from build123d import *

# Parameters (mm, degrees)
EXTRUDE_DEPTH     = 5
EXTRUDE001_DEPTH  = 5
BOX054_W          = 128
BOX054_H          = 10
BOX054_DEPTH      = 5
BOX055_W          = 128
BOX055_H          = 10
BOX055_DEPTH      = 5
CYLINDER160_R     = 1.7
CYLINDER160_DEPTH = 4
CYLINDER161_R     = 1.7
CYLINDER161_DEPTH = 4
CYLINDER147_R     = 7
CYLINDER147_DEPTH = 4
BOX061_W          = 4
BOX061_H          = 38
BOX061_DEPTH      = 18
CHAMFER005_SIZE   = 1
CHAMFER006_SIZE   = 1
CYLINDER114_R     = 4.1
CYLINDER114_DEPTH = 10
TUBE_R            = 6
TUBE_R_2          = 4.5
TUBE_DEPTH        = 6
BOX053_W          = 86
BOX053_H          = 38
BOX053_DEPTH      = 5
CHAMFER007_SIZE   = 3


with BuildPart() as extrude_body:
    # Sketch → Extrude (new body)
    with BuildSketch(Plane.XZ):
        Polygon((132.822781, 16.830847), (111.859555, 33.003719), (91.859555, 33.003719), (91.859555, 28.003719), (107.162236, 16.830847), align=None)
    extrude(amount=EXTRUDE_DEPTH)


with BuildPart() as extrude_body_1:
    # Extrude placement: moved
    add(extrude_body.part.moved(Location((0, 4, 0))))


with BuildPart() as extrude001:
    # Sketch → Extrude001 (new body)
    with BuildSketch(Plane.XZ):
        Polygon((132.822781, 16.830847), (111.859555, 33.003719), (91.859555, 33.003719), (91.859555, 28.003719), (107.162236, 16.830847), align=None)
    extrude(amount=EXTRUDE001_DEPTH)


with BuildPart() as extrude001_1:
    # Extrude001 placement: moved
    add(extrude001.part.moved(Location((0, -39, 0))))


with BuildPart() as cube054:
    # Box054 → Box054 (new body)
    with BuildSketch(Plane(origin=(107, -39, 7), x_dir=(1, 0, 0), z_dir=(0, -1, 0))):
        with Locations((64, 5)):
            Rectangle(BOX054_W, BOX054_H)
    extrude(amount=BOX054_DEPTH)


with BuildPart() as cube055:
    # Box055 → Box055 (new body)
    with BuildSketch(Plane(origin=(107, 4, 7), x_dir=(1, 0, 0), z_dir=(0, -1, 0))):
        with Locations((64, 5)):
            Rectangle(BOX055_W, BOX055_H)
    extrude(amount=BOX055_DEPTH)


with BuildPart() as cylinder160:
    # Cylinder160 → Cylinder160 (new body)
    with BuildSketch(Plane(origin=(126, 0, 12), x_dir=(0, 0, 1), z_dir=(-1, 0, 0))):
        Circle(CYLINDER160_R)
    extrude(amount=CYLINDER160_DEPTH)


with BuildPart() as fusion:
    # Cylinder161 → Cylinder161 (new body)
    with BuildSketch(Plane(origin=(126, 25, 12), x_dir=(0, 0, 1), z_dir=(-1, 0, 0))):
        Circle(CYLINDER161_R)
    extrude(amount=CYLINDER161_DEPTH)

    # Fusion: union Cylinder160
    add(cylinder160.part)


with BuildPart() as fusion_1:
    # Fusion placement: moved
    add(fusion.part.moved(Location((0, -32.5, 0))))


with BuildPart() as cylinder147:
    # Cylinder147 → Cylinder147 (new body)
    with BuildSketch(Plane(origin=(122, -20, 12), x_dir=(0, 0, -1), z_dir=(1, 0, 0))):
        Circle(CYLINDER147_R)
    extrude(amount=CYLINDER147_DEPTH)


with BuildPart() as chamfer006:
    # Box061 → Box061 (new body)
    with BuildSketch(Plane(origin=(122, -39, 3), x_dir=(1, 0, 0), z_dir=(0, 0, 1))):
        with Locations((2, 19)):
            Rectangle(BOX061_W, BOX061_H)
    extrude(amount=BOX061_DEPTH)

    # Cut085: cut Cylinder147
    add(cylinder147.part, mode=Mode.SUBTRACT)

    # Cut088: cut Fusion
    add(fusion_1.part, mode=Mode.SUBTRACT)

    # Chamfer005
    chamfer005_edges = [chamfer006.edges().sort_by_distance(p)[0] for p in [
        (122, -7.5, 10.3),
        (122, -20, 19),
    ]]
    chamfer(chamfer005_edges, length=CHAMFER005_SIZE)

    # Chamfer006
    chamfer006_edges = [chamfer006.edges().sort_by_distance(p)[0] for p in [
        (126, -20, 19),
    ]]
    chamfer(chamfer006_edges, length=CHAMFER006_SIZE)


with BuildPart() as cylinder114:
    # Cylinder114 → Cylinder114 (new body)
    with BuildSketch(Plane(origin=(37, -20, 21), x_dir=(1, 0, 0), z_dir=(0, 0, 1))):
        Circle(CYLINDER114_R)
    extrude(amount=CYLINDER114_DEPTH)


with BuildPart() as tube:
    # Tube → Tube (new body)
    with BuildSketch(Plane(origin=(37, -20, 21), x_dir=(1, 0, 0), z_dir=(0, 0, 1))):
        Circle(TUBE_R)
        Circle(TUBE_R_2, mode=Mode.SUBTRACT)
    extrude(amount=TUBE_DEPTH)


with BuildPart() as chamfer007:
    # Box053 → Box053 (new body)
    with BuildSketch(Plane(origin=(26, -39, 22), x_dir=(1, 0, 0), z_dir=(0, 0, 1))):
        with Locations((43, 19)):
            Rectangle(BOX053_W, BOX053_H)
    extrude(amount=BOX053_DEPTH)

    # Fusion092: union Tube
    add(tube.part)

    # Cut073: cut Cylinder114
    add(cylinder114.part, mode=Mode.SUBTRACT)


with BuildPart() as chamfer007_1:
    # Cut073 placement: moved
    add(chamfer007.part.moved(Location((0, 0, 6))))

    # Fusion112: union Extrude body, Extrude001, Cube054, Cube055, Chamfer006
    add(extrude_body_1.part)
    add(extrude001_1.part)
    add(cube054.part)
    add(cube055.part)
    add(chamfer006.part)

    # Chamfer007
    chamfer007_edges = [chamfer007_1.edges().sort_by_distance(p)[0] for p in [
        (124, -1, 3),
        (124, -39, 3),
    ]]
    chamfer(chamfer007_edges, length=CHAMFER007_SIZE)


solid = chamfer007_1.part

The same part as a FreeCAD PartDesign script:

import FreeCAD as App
import Part
import Sketcher
from FreeCAD import Vector
Q = App.Units.Quantity


def edges_at(feature, points):
    """Names of the edges that pass closest to the given points."""
    edges = feature.Shape.Edges
    near = lambda p: min(range(len(edges)), key=lambda i: edges[i].distToShape(Part.Vertex(*p))[0])
    return sorted({f"Edge{near(p) + 1}" for p in points})

doc = App.newDocument("Part")
params = doc.addObject("Spreadsheet::Sheet", "Params")
for row, (alias, value) in enumerate([
    ("sketch1_width", "20 mm"),
    ("sketch1_height", "5 mm"),
    ("pad1_length", "5 mm"),
    ("sketch2_width", "20 mm"),
    ("sketch2_height", "5 mm"),
    ("pad2_length", "5 mm"),
    ("sketch3_width", "128 mm"),
    ("sketch3_height", "10 mm"),
    ("pad3_length", "5 mm"),
    ("sketch4_width", "128 mm"),
    ("sketch4_height", "10 mm"),
    ("pad4_length", "5 mm"),
    ("sketch5_diameter", "3.4 mm"),
    ("pad5_length", "4 mm"),
    ("sketch6_diameter", "3.4 mm"),
    ("pad6_length", "4 mm"),
    ("sketch7_diameter", "14 mm"),
    ("pad7_length", "4 mm"),
    ("sketch8_width", "4 mm"),
    ("sketch8_height", "38 mm"),
    ("pad8_length", "18 mm"),
    ("chamfer_size", "1 mm"),
    ("chamfer2_size", "1 mm"),
    ("sketch9_diameter", "8.2 mm"),
    ("pad9_length", "10 mm"),
    ("sketch10_diameter", "12 mm"),
    ("sketch10_diameter2", "9 mm"),
    ("pad10_length", "6 mm"),
    ("sketch11_width", "86 mm"),
    ("sketch11_height", "38 mm"),
    ("pad11_length", "5 mm"),
    ("chamfer3_size", "3 mm"),
], start=1):
    params.set(f"A{row}", alias)
    params.set(f"B{row}", "=" + value)
    params.setAlias(f"B{row}", alias)

body = doc.addObject("PartDesign::Body", "Body")

# Sketch on XZ plane
sketch1 = body.newObject("Sketcher::SketchObject", "Sketch")
sketch1.AttachmentSupport = (doc.getObject("XZ_Plane"), [""])
sketch1.MapMode = "FlatFace"
sketch1.addGeometry(Part.LineSegment(Vector(132.8, 16.8, 0), Vector(111.9, 33, 0)), False)
sketch1.addGeometry(Part.LineSegment(Vector(111.9, 33, 0), Vector(91.9, 33, 0)), False)
sketch1.addGeometry(Part.LineSegment(Vector(91.9, 33, 0), Vector(91.9, 28, 0)), False)
sketch1.addGeometry(Part.LineSegment(Vector(91.9, 28, 0), Vector(107.2, 16.8, 0)), False)
sketch1.addGeometry(Part.LineSegment(Vector(107.2, 16.8, 0), Vector(132.8, 16.8, 0)), False)
sketch1.addConstraint(Sketcher.Constraint("Coincident", 0, 2, 1, 1))
sketch1.addConstraint(Sketcher.Constraint("Coincident", 1, 2, 2, 1))
sketch1.addConstraint(Sketcher.Constraint("Coincident", 2, 2, 3, 1))
sketch1.addConstraint(Sketcher.Constraint("Coincident", 3, 2, 4, 1))
sketch1.addConstraint(Sketcher.Constraint("Coincident", 4, 2, 0, 1))
sketch1.addConstraint(Sketcher.Constraint("Horizontal", 1))
sketch1.addConstraint(Sketcher.Constraint("Vertical", 2))
sketch1.addConstraint(Sketcher.Constraint("Horizontal", 4))
sketch1.addConstraint(Sketcher.Constraint("DistanceX", 1, 2, 1, 1, Q("20 mm")))
sketch1.addConstraint(Sketcher.Constraint("DistanceY", 2, 2, 2, 1, Q("5 mm")))
sketch1.addConstraint(Sketcher.Constraint("Distance", 3, Q("18.94743 mm")))
sketch1.addConstraint(Sketcher.Constraint("DistanceX", 4, 1, 4, 2, Q("25.660545 mm")))
sketch1.addConstraint(Sketcher.Constraint("DistanceY", -1, 1, 0, 2, Q("33.003719 mm")))
sketch1.addConstraint(Sketcher.Constraint("DistanceX", -1, 1, 4, 2, Q("132.822781 mm")))
sketch1.addConstraint(Sketcher.Constraint("DistanceX", 3, 2, 0, 2, Q("4.697319 mm")))
sketch1.setExpression("Constraints[8]", "Params.sketch1_width")
sketch1.setExpression("Constraints[9]", "Params.sketch1_height")
pad1 = body.newObject("PartDesign::Pad", "Pad")
pad1.Profile = sketch1
pad1.setExpression("Length", "Params.pad1_length")
body2 = doc.addObject("PartDesign::Body", "Body001")
doc.recompute()

body.Placement = App.Placement(Vector(0, 4, 0), App.Rotation(Vector(0, 0, 1), 0))
boolean = body2.newObject("PartDesign::Boolean", "Boolean")
boolean.Type = "Fuse"
boolean.addObjects([body])
body3 = doc.addObject("PartDesign::Body", "Body002")

# Sketch on XZ plane
sketch2 = body3.newObject("Sketcher::SketchObject", "Sketch001")
sketch2.AttachmentSupport = (doc.getObject("XZ_Plane002"), [""])
sketch2.MapMode = "FlatFace"
sketch2.addGeometry(Part.LineSegment(Vector(132.8, 16.8, 0), Vector(111.9, 33, 0)), False)
sketch2.addGeometry(Part.LineSegment(Vector(111.9, 33, 0), Vector(91.9, 33, 0)), False)
sketch2.addGeometry(Part.LineSegment(Vector(91.9, 33, 0), Vector(91.9, 28, 0)), False)
sketch2.addGeometry(Part.LineSegment(Vector(91.9, 28, 0), Vector(107.2, 16.8, 0)), False)
sketch2.addGeometry(Part.LineSegment(Vector(107.2, 16.8, 0), Vector(132.8, 16.8, 0)), False)
sketch2.addConstraint(Sketcher.Constraint("Coincident", 0, 2, 1, 1))
sketch2.addConstraint(Sketcher.Constraint("Coincident", 1, 2, 2, 1))
sketch2.addConstraint(Sketcher.Constraint("Coincident", 2, 2, 3, 1))
sketch2.addConstraint(Sketcher.Constraint("Coincident", 3, 2, 4, 1))
sketch2.addConstraint(Sketcher.Constraint("Coincident", 4, 2, 0, 1))
sketch2.addConstraint(Sketcher.Constraint("Horizontal", 1))
sketch2.addConstraint(Sketcher.Constraint("Vertical", 2))
sketch2.addConstraint(Sketcher.Constraint("Horizontal", 4))
sketch2.addConstraint(Sketcher.Constraint("DistanceX", 1, 2, 1, 1, Q("20 mm")))
sketch2.addConstraint(Sketcher.Constraint("DistanceY", 2, 2, 2, 1, Q("5 mm")))
sketch2.addConstraint(Sketcher.Constraint("Distance", 3, Q("18.94743 mm")))
sketch2.addConstraint(Sketcher.Constraint("DistanceX", 4, 1, 4, 2, Q("25.660545 mm")))
sketch2.addConstraint(Sketcher.Constraint("DistanceY", -1, 1, 0, 2, Q("33.003719 mm")))
sketch2.addConstraint(Sketcher.Constraint("DistanceX", -1, 1, 4, 2, Q("132.822781 mm")))
sketch2.addConstraint(Sketcher.Constraint("DistanceX", 3, 2, 0, 2, Q("4.697319 mm")))
sketch2.setExpression("Constraints[8]", "Params.sketch2_width")
sketch2.setExpression("Constraints[9]", "Params.sketch2_height")
pad2 = body3.newObject("PartDesign::Pad", "Pad001")
pad2.Profile = sketch2
pad2.setExpression("Length", "Params.pad2_length")
body4 = doc.addObject("PartDesign::Body", "Body003")
doc.recompute()

body3.Placement = App.Placement(Vector(0, -39, 0), App.Rotation(Vector(0, 0, 1), 0))
boolean2 = body4.newObject("PartDesign::Boolean", "Boolean001")
boolean2.Type = "Fuse"
boolean2.addObjects([body3])
body5 = doc.addObject("PartDesign::Body", "Body004")

# Sketch on XZ plane
sketch3 = body5.newObject("Sketcher::SketchObject", "Sketch002")
sketch3.AttachmentSupport = (doc.getObject("XZ_Plane004"), [""])
sketch3.MapMode = "FlatFace"
sketch3.AttachmentOffset = App.Placement(Vector(0, 0, 39), App.Rotation())
sketch3.addGeometry(Part.LineSegment(Vector(107, 17, 0), Vector(107, 7, 0)), False)
sketch3.addGeometry(Part.LineSegment(Vector(107, 7, 0), Vector(235, 7, 0)), False)
sketch3.addGeometry(Part.LineSegment(Vector(235, 7, 0), Vector(235, 17, 0)), False)
sketch3.addGeometry(Part.LineSegment(Vector(235, 17, 0), Vector(107, 17, 0)), False)
sketch3.addConstraint(Sketcher.Constraint("Coincident", 0, 2, 1, 1))
sketch3.addConstraint(Sketcher.Constraint("Coincident", 1, 2, 2, 1))
sketch3.addConstraint(Sketcher.Constraint("Coincident", 2, 2, 3, 1))
sketch3.addConstraint(Sketcher.Constraint("Coincident", 3, 2, 0, 1))
sketch3.addConstraint(Sketcher.Constraint("Vertical", 0))
sketch3.addConstraint(Sketcher.Constraint("Horizontal", 1))
sketch3.addConstraint(Sketcher.Constraint("Vertical", 2))
sketch3.addConstraint(Sketcher.Constraint("Horizontal", 3))
sketch3.addConstraint(Sketcher.Constraint("DistanceX", 1, 1, 1, 2, Q("128 mm")))
sketch3.addConstraint(Sketcher.Constraint("DistanceY", 0, 2, 0, 1, Q("10 mm")))
sketch3.addConstraint(Sketcher.Constraint("DistanceX", -1, 1, 0, 2, Q("107 mm")))
sketch3.addConstraint(Sketcher.Constraint("DistanceY", -1, 1, 0, 2, Q("7 mm")))
sketch3.setExpression("Constraints[8]", "Params.sketch3_width")
sketch3.setExpression("Constraints[9]", "Params.sketch3_height")
pad3 = body5.newObject("PartDesign::Pad", "Pad002")
pad3.Profile = sketch3
pad3.setExpression("Length", "Params.pad3_length")
body6 = doc.addObject("PartDesign::Body", "Body005")

# Sketch on XZ plane
sketch4 = body6.newObject("Sketcher::SketchObject", "Sketch003")
sketch4.AttachmentSupport = (doc.getObject("XZ_Plane005"), [""])
sketch4.MapMode = "FlatFace"
sketch4.AttachmentOffset = App.Placement(Vector(0, 0, -4), App.Rotation())
sketch4.addGeometry(Part.LineSegment(Vector(107, 17, 0), Vector(107, 7, 0)), False)
sketch4.addGeometry(Part.LineSegment(Vector(107, 7, 0), Vector(235, 7, 0)), False)
sketch4.addGeometry(Part.LineSegment(Vector(235, 7, 0), Vector(235, 17, 0)), False)
sketch4.addGeometry(Part.LineSegment(Vector(235, 17, 0), Vector(107, 17, 0)), False)
sketch4.addConstraint(Sketcher.Constraint("Coincident", 0, 2, 1, 1))
sketch4.addConstraint(Sketcher.Constraint("Coincident", 1, 2, 2, 1))
sketch4.addConstraint(Sketcher.Constraint("Coincident", 2, 2, 3, 1))
sketch4.addConstraint(Sketcher.Constraint("Coincident", 3, 2, 0, 1))
sketch4.addConstraint(Sketcher.Constraint("Vertical", 0))
sketch4.addConstraint(Sketcher.Constraint("Horizontal", 1))
sketch4.addConstraint(Sketcher.Constraint("Vertical", 2))
sketch4.addConstraint(Sketcher.Constraint("Horizontal", 3))
sketch4.addConstraint(Sketcher.Constraint("DistanceX", 1, 1, 1, 2, Q("128 mm")))
sketch4.addConstraint(Sketcher.Constraint("DistanceY", 0, 2, 0, 1, Q("10 mm")))
sketch4.addConstraint(Sketcher.Constraint("DistanceX", -1, 1, 0, 2, Q("107 mm")))
sketch4.addConstraint(Sketcher.Constraint("DistanceY", -1, 1, 0, 2, Q("7 mm")))
sketch4.setExpression("Constraints[8]", "Params.sketch4_width")
sketch4.setExpression("Constraints[9]", "Params.sketch4_height")
pad4 = body6.newObject("PartDesign::Pad", "Pad003")
pad4.Profile = sketch4
pad4.setExpression("Length", "Params.pad4_length")
body7 = doc.addObject("PartDesign::Body", "Body006")

# Sketch on YZ plane
sketch5 = body7.newObject("Sketcher::SketchObject", "Sketch004")
sketch5.AttachmentSupport = (doc.getObject("YZ_Plane006"), [""])
sketch5.MapMode = "FlatFace"
sketch5.AttachmentOffset = App.Placement(Vector(0, 0, 126), App.Rotation())
sketch5.addGeometry(Part.Circle(Vector(0, 12, 0), Vector(0, 0, 1), 1.7), False)
sketch5.addConstraint(Sketcher.Constraint("PointOnObject", 0, 3, -2))
sketch5.addConstraint(Sketcher.Constraint("Diameter", 0, Q("3.4 mm")))
sketch5.addConstraint(Sketcher.Constraint("DistanceY", -1, 1, 0, 3, Q("12 mm")))
sketch5.setExpression("Constraints[1]", "Params.sketch5_diameter")
pad5 = body7.newObject("PartDesign::Pad", "Pad004")
pad5.Profile = sketch5
pad5.setExpression("Length", "Params.pad5_length")
pad5.Reversed = True
body8 = doc.addObject("PartDesign::Body", "Body007")
body8.AllowCompound = True

# Sketch on YZ plane
sketch6 = body8.newObject("Sketcher::SketchObject", "Sketch005")
sketch6.AttachmentSupport = (doc.getObject("YZ_Plane007"), [""])
sketch6.MapMode = "FlatFace"
sketch6.AttachmentOffset = App.Placement(Vector(0, 0, 126), App.Rotation())
sketch6.addGeometry(Part.Circle(Vector(25, 12, 0), Vector(0, 0, 1), 1.7), False)
sketch6.addConstraint(Sketcher.Constraint("Diameter", 0, Q("3.4 mm")))
sketch6.addConstraint(Sketcher.Constraint("DistanceX", -1, 1, 0, 3, Q("25 mm")))
sketch6.addConstraint(Sketcher.Constraint("DistanceY", -1, 1, 0, 3, Q("12 mm")))
sketch6.setExpression("Constraints[0]", "Params.sketch6_diameter")
pad6 = body8.newObject("PartDesign::Pad", "Pad005")
pad6.Profile = sketch6
pad6.setExpression("Length", "Params.pad6_length")
pad6.Reversed = True
doc.recompute()

boolean3 = body8.newObject("PartDesign::Boolean", "Boolean002")
boolean3.Type = "Fuse"
boolean3.addObjects([body7])
body9 = doc.addObject("PartDesign::Body", "Body008")
body9.AllowCompound = True
doc.recompute()

body8.Placement = App.Placement(Vector(0, -32.5, 0), App.Rotation(Vector(0, 0, 1), 0))
boolean4 = body9.newObject("PartDesign::Boolean", "Boolean003")
boolean4.Type = "Fuse"
boolean4.addObjects([body8])
body10 = doc.addObject("PartDesign::Body", "Body009")

# Sketch on YZ plane
sketch7 = body10.newObject("Sketcher::SketchObject", "Sketch006")
sketch7.AttachmentSupport = (doc.getObject("YZ_Plane009"), [""])
sketch7.MapMode = "FlatFace"
sketch7.AttachmentOffset = App.Placement(Vector(0, 0, 122), App.Rotation())
sketch7.addGeometry(Part.Circle(Vector(-20, 12, 0), Vector(0, 0, 1), 7), False)
sketch7.addConstraint(Sketcher.Constraint("Diameter", 0, Q("14 mm")))
sketch7.addConstraint(Sketcher.Constraint("DistanceX", 0, 3, -1, 1, Q("20 mm")))
sketch7.addConstraint(Sketcher.Constraint("DistanceY", -1, 1, 0, 3, Q("12 mm")))
sketch7.setExpression("Constraints[0]", "Params.sketch7_diameter")
pad7 = body10.newObject("PartDesign::Pad", "Pad006")
pad7.Profile = sketch7
pad7.setExpression("Length", "Params.pad7_length")
body11 = doc.addObject("PartDesign::Body", "Body010")

# Sketch on XY plane
sketch8 = body11.newObject("Sketcher::SketchObject", "Sketch007")
sketch8.AttachmentSupport = (doc.getObject("XY_Plane010"), [""])
sketch8.MapMode = "FlatFace"
sketch8.AttachmentOffset = App.Placement(Vector(0, 0, 3), App.Rotation())
sketch8.addGeometry(Part.LineSegment(Vector(122, -1, 0), Vector(122, -39, 0)), False)
sketch8.addGeometry(Part.LineSegment(Vector(122, -39, 0), Vector(126, -39, 0)), False)
sketch8.addGeometry(Part.LineSegment(Vector(126, -39, 0), Vector(126, -1, 0)), False)
sketch8.addGeometry(Part.LineSegment(Vector(126, -1, 0), Vector(122, -1, 0)), False)
sketch8.addConstraint(Sketcher.Constraint("Coincident", 0, 2, 1, 1))
sketch8.addConstraint(Sketcher.Constraint("Coincident", 1, 2, 2, 1))
sketch8.addConstraint(Sketcher.Constraint("Coincident", 2, 2, 3, 1))
sketch8.addConstraint(Sketcher.Constraint("Coincident", 3, 2, 0, 1))
sketch8.addConstraint(Sketcher.Constraint("Vertical", 0))
sketch8.addConstraint(Sketcher.Constraint("Horizontal", 1))
sketch8.addConstraint(Sketcher.Constraint("Vertical", 2))
sketch8.addConstraint(Sketcher.Constraint("Horizontal", 3))
sketch8.addConstraint(Sketcher.Constraint("DistanceX", 1, 1, 1, 2, Q("4 mm")))
sketch8.addConstraint(Sketcher.Constraint("DistanceY", 0, 2, 0, 1, Q("38 mm")))
sketch8.addConstraint(Sketcher.Constraint("DistanceX", -1, 1, 0, 2, Q("122 mm")))
sketch8.addConstraint(Sketcher.Constraint("DistanceY", 0, 2, -1, 1, Q("39 mm")))
sketch8.setExpression("Constraints[8]", "Params.sketch8_width")
sketch8.setExpression("Constraints[9]", "Params.sketch8_height")
pad8 = body11.newObject("PartDesign::Pad", "Pad007")
pad8.Profile = sketch8
pad8.setExpression("Length", "Params.pad8_length")
doc.recompute()

boolean5 = body11.newObject("PartDesign::Boolean", "Boolean004")
boolean5.Type = "Cut"
boolean5.addObjects([body10])
doc.recompute()

boolean6 = body11.newObject("PartDesign::Boolean", "Boolean005")
boolean6.Type = "Cut"
boolean6.addObjects([body9])
doc.recompute()

chamfer = body11.newObject("PartDesign::Chamfer", "Chamfer")
chamfer.Base = (boolean6, edges_at(boolean6, [(122, -7.5, 10.3), (122, -20, 19)]))
chamfer.setExpression("Size", "Params.chamfer_size")
doc.recompute()

chamfer2 = body11.newObject("PartDesign::Chamfer", "Chamfer001")
chamfer2.Base = (chamfer, edges_at(chamfer, [(126, -20, 19)]))
chamfer2.setExpression("Size", "Params.chamfer2_size")
body12 = doc.addObject("PartDesign::Body", "Body011")

# Sketch on XY plane
sketch9 = body12.newObject("Sketcher::SketchObject", "Sketch008")
sketch9.AttachmentSupport = (doc.getObject("XY_Plane011"), [""])
sketch9.MapMode = "FlatFace"
sketch9.AttachmentOffset = App.Placement(Vector(0, 0, 21), App.Rotation())
sketch9.addGeometry(Part.Circle(Vector(37, -20, 0), Vector(0, 0, 1), 4.1), False)
sketch9.addConstraint(Sketcher.Constraint("Diameter", 0, Q("8.2 mm")))
sketch9.addConstraint(Sketcher.Constraint("DistanceX", -1, 1, 0, 3, Q("37 mm")))
sketch9.addConstraint(Sketcher.Constraint("DistanceY", 0, 3, -1, 1, Q("20 mm")))
sketch9.setExpression("Constraints[0]", "Params.sketch9_diameter")
pad9 = body12.newObject("PartDesign::Pad", "Pad008")
pad9.Profile = sketch9
pad9.setExpression("Length", "Params.pad9_length")
body13 = doc.addObject("PartDesign::Body", "Body012")

# Sketch on XY plane
sketch10 = body13.newObject("Sketcher::SketchObject", "Sketch009")
sketch10.AttachmentSupport = (doc.getObject("XY_Plane012"), [""])
sketch10.MapMode = "FlatFace"
sketch10.AttachmentOffset = App.Placement(Vector(0, 0, 21), App.Rotation())
sketch10.addGeometry(Part.Circle(Vector(37, -20, 0), Vector(0, 0, 1), 6), False)
sketch10.addGeometry(Part.Circle(Vector(37, -20, 0), Vector(0, 0, 1), 4.5), False)
sketch10.addConstraint(Sketcher.Constraint("Coincident", 1, 3, 0, 3))
sketch10.addConstraint(Sketcher.Constraint("Diameter", 0, Q("12 mm")))
sketch10.addConstraint(Sketcher.Constraint("Diameter", 1, Q("9 mm")))
sketch10.addConstraint(Sketcher.Constraint("DistanceX", -1, 1, 0, 3, Q("37 mm")))
sketch10.addConstraint(Sketcher.Constraint("DistanceY", 0, 3, -1, 1, Q("20 mm")))
sketch10.setExpression("Constraints[1]", "Params.sketch10_diameter")
sketch10.setExpression("Constraints[2]", "Params.sketch10_diameter2")
pad10 = body13.newObject("PartDesign::Pad", "Pad009")
pad10.Profile = sketch10
pad10.setExpression("Length", "Params.pad10_length")
body14 = doc.addObject("PartDesign::Body", "Body013")

# Sketch on XY plane
sketch11 = body14.newObject("Sketcher::SketchObject", "Sketch010")
sketch11.AttachmentSupport = (doc.getObject("XY_Plane013"), [""])
sketch11.MapMode = "FlatFace"
sketch11.AttachmentOffset = App.Placement(Vector(0, 0, 22), App.Rotation())
sketch11.addGeometry(Part.LineSegment(Vector(26, -1, 0), Vector(26, -39, 0)), False)
sketch11.addGeometry(Part.LineSegment(Vector(26, -39, 0), Vector(112, -39, 0)), False)
sketch11.addGeometry(Part.LineSegment(Vector(112, -39, 0), Vector(112, -1, 0)), False)
sketch11.addGeometry(Part.LineSegment(Vector(112, -1, 0), Vector(26, -1, 0)), False)
sketch11.addConstraint(Sketcher.Constraint("Coincident", 0, 2, 1, 1))
sketch11.addConstraint(Sketcher.Constraint("Coincident", 1, 2, 2, 1))
sketch11.addConstraint(Sketcher.Constraint("Coincident", 2, 2, 3, 1))
sketch11.addConstraint(Sketcher.Constraint("Coincident", 3, 2, 0, 1))
sketch11.addConstraint(Sketcher.Constraint("Vertical", 0))
sketch11.addConstraint(Sketcher.Constraint("Horizontal", 1))
sketch11.addConstraint(Sketcher.Constraint("Vertical", 2))
sketch11.addConstraint(Sketcher.Constraint("Horizontal", 3))
sketch11.addConstraint(Sketcher.Constraint("DistanceX", 1, 1, 1, 2, Q("86 mm")))
sketch11.addConstraint(Sketcher.Constraint("DistanceY", 0, 2, 0, 1, Q("38 mm")))
sketch11.addConstraint(Sketcher.Constraint("DistanceX", -1, 1, 0, 2, Q("26 mm")))
sketch11.addConstraint(Sketcher.Constraint("DistanceY", 0, 2, -1, 1, Q("39 mm")))
sketch11.setExpression("Constraints[8]", "Params.sketch11_width")
sketch11.setExpression("Constraints[9]", "Params.sketch11_height")
pad11 = body14.newObject("PartDesign::Pad", "Pad010")
pad11.Profile = sketch11
pad11.setExpression("Length", "Params.pad11_length")
doc.recompute()

boolean7 = body14.newObject("PartDesign::Boolean", "Boolean006")
boolean7.Type = "Fuse"
boolean7.addObjects([body13])
doc.recompute()

boolean8 = body14.newObject("PartDesign::Boolean", "Boolean007")
boolean8.Type = "Cut"
boolean8.addObjects([body12])
body15 = doc.addObject("PartDesign::Body", "Body014")
doc.recompute()

body14.Placement = App.Placement(Vector(0, 0, 6), App.Rotation(Vector(0, 0, 1), 0))
boolean9 = body15.newObject("PartDesign::Boolean", "Boolean008")
boolean9.Type = "Fuse"
boolean9.addObjects([body14])
doc.recompute()

boolean10 = body15.newObject("PartDesign::Boolean", "Boolean009")
boolean10.Type = "Fuse"
boolean10.addObjects([body2])
doc.recompute()

boolean11 = body15.newObject("PartDesign::Boolean", "Boolean010")
boolean11.Type = "Fuse"
boolean11.addObjects([body4])
doc.recompute()

boolean12 = body15.newObject("PartDesign::Boolean", "Boolean011")
boolean12.Type = "Fuse"
boolean12.addObjects([body5])
doc.recompute()

boolean13 = body15.newObject("PartDesign::Boolean", "Boolean012")
boolean13.Type = "Fuse"
boolean13.addObjects([body6])
doc.recompute()

boolean14 = body15.newObject("PartDesign::Boolean", "Boolean013")
boolean14.Type = "Fuse"
boolean14.addObjects([body11])
doc.recompute()

chamfer3 = body15.newObject("PartDesign::Chamfer", "Chamfer002")
chamfer3.Base = (boolean14, edges_at(boolean14, [(124, -1, 3), (124, -39, 3)]))
chamfer3.setExpression("Size", "Params.chamfer3_size")

doc.recompute()
